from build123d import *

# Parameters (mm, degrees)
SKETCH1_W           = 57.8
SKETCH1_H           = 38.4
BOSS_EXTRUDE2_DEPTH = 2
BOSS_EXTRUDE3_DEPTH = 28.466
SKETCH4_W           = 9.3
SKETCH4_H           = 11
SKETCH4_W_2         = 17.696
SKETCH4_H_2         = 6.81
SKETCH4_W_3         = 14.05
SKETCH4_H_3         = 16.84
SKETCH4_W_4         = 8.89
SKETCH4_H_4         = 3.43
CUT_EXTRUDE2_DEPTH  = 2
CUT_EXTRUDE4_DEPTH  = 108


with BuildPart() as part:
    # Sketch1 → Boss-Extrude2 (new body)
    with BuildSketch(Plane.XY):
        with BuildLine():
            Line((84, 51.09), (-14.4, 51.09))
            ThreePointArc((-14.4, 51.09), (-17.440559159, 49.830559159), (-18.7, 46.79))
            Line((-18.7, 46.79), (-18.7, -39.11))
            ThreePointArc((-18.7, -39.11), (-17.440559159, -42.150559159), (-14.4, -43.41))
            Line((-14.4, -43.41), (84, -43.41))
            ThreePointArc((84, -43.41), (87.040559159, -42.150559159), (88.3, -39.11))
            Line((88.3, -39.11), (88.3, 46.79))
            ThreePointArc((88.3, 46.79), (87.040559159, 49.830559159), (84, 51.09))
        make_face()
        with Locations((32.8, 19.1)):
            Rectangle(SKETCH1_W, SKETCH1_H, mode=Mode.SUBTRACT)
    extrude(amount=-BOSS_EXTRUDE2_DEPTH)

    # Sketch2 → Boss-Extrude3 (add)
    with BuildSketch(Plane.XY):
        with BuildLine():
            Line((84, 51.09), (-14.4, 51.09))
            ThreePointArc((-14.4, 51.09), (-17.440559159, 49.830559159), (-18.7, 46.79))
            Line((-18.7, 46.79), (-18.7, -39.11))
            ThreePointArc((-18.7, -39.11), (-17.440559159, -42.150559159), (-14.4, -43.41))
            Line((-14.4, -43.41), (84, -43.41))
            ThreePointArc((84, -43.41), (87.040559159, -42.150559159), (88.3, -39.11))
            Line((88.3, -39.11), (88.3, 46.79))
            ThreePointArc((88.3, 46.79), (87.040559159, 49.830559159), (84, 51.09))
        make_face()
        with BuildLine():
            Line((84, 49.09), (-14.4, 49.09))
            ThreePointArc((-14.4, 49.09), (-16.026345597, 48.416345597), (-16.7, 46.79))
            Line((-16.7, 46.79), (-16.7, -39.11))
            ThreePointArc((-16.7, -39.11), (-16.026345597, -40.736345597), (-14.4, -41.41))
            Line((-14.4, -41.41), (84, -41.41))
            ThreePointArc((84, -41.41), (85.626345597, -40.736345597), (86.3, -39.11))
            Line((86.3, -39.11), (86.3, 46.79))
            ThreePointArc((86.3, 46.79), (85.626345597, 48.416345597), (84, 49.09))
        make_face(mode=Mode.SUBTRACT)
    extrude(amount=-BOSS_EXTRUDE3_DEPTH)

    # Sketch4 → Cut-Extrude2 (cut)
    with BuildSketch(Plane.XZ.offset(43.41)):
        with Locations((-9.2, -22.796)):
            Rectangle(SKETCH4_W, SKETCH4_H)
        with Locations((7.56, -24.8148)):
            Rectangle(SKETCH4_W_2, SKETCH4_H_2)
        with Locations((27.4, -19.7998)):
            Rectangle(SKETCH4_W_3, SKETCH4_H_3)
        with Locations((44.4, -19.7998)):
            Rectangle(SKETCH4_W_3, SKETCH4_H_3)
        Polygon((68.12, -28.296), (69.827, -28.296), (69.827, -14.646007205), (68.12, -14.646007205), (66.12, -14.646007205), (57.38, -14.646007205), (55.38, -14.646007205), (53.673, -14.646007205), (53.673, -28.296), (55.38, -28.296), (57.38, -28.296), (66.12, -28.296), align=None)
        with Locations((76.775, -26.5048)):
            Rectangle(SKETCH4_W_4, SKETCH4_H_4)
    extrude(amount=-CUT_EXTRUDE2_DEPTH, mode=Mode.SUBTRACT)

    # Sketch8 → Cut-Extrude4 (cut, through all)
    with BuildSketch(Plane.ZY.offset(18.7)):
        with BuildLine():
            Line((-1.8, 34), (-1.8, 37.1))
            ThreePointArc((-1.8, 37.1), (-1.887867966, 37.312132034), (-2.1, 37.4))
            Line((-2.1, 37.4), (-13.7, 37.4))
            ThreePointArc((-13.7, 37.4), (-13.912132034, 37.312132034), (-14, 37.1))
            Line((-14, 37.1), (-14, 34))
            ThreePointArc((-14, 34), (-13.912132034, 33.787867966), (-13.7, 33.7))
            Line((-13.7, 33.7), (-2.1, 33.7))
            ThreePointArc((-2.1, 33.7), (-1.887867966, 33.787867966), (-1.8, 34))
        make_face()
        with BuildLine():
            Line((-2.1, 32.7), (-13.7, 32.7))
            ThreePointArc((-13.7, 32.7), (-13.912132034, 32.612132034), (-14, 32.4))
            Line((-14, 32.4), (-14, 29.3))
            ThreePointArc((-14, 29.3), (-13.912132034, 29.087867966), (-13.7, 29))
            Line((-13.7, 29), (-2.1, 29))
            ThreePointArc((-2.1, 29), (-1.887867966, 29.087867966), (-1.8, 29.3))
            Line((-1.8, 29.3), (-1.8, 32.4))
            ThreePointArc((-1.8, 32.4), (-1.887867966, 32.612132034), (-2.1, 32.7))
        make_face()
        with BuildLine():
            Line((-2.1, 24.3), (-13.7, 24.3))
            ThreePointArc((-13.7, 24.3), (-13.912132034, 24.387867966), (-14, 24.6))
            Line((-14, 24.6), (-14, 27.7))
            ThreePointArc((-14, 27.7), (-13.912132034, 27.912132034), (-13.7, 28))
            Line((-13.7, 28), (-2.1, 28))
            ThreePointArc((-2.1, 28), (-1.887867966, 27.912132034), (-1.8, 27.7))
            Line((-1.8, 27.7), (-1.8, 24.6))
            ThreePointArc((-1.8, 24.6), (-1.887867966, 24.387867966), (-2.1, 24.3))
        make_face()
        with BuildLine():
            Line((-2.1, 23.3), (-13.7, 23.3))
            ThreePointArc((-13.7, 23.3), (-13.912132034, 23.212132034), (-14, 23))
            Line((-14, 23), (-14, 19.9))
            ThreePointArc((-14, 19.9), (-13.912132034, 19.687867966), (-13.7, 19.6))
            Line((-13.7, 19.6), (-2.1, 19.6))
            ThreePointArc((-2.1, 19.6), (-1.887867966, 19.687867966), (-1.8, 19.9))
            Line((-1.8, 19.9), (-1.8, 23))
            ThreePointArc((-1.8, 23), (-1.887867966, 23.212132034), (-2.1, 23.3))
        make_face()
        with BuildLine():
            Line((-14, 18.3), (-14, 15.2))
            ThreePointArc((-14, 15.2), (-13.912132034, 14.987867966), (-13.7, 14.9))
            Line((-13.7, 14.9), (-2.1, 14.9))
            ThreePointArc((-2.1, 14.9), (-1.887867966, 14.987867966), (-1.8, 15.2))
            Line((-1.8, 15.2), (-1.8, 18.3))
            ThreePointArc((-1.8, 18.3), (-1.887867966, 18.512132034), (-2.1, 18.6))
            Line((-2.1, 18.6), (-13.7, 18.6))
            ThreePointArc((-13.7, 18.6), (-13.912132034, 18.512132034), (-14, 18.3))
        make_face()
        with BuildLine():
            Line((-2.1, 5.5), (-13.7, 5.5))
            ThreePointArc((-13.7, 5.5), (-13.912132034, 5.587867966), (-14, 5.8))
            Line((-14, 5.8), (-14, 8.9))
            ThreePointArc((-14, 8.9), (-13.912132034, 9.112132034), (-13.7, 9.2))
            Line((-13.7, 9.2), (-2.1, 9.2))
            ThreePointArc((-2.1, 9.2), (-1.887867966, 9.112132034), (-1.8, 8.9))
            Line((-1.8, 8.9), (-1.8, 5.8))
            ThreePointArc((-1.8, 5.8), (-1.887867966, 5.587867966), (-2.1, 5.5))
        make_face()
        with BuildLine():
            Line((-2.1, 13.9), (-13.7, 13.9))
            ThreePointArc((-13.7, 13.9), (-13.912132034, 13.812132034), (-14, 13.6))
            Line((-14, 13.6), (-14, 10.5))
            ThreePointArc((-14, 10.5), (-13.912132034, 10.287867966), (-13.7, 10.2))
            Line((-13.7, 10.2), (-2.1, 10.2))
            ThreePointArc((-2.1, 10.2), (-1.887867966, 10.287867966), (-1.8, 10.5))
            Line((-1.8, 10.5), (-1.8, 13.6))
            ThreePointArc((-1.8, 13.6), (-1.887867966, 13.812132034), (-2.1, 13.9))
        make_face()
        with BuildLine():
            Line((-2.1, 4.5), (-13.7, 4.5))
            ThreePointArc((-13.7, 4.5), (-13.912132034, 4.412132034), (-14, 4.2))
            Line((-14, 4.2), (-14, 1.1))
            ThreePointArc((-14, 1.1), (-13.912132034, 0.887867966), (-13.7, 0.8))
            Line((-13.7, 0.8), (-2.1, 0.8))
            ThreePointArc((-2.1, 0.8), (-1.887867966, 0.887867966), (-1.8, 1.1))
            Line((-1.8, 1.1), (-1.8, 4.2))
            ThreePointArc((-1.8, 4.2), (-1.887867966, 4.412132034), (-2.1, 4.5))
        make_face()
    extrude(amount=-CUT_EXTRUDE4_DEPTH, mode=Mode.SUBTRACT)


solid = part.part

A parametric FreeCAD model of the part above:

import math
import FreeCAD as App
import Part
import Sketcher


def add_polygon(sketch, points):
    """Adds a closed chain of lines whose ends are joined by coincident constraints."""
    first, n = sketch.GeometryCount, len(points)
    for a, b in zip(points, points[1:] + points[:1]):
        sketch.addGeometry(Part.LineSegment(App.Vector(*a, 0), App.Vector(*b, 0)), False)
    for i in range(n):
        sketch.addConstraint(Sketcher.Constraint("Coincident", first + i, 2, first + (i + 1) % n, 1))

doc = App.newDocument("Part")
body = doc.addObject("PartDesign::Body", "Body")

# Sketch on XY plane
sketch1 = body.newObject("Sketcher::SketchObject", "Sketch")
sketch1.AttachmentSupport = (doc.getObject("XY_Plane"), [""])
sketch1.MapMode = "FlatFace"
sketch1.addGeometry(Part.LineSegment(App.Vector(84, 51.1, 0), App.Vector(-14.4, 51.1, 0)), False)  # 0
sketch1.addGeometry(Part.ArcOfCircle(Part.Circle(App.Vector(-14.4, 46.8, 0), App.Vector(0, 0, 1), 4.3), math.radians(90), math.radians(180)), False)  # 1
sketch1.addGeometry(Part.LineSegment(App.Vector(-18.7, 46.8, 0), App.Vector(-18.7, -39.1, 0)), False)  # 2
sketch1.addGeometry(Part.ArcOfCircle(Part.Circle(App.Vector(-14.4, -39.1, 0), App.Vector(0, 0, 1), 4.3), math.radians(180), math.radians(270)), False)  # 3
sketch1.addGeometry(Part.LineSegment(App.Vector(-14.4, -43.4, 0), App.Vector(84, -43.4, 0)), False)  # 4
sketch1.addGeometry(Part.ArcOfCircle(Part.Circle(App.Vector(84, -39.1, 0), App.Vector(0, 0, 1), 4.3), math.radians(-90), math.radians(0)), False)  # 5
sketch1.addGeometry(Part.LineSegment(App.Vector(88.3, -39.1, 0), App.Vector(88.3, 46.8, 0)), False)  # 6
sketch1.addGeometry(Part.ArcOfCircle(Part.Circle(App.Vector(84, 46.8, 0), App.Vector(0, 0, 1), 4.3), math.radians(0), math.radians(90)), False)  # 7
add_polygon(sketch1, [(61.7, -0.1), (3.9, -0.1), (3.9, 38.3), (61.7, 38.3)])  # lines 8-11
sketch1.addConstraint([
    Sketcher.Constraint("Tangent", 0, 2, 1, 1),
    Sketcher.Constraint("Tangent", 1, 2, 2, 1),
    Sketcher.Constraint("Tangent", 2, 2, 3, 1),
    Sketcher.Constraint("Tangent", 3, 2, 4, 1),
    Sketcher.Constraint("Tangent", 4, 2, 5, 1),
    Sketcher.Constraint("Tangent", 5, 2, 6, 1),
    Sketcher.Constraint("Tangent", 6, 2, 7, 1),
    Sketcher.Constraint("Tangent", 7, 2, 0, 1),
    Sketcher.Constraint("Horizontal", 0),
    Sketcher.Constraint("Vertical", 2),
    Sketcher.Constraint("Horizontal", 4),
    Sketcher.Constraint("Vertical", 6),
    Sketcher.Constraint("Horizontal", 8),
    Sketcher.Constraint("Vertical", 9),
    Sketcher.Constraint("Horizontal", 10),
    Sketcher.Constraint("Vertical", 11),
    Sketcher.Constraint("Equal", 1, 3),
    Sketcher.Constraint("Equal", 3, 5),
    Sketcher.Constraint("Equal", 5, 7),
    Sketcher.Constraint("Radius", 1, 4.3),
    Sketcher.Constraint("DistanceX", 0, 2, 0, 1, 98.4),
    Sketcher.Constraint("DistanceX", 8, 2, 8, 1, 57.8),
    Sketcher.Constraint("DistanceY", 2, 2, 2, 1, 85.9),
    Sketcher.Constraint("DistanceY", 9, 1, 9, 2, 38.4),
    Sketcher.Constraint("DistanceX", -1, 1, 5, 3, 84.0),
    Sketcher.Constraint("DistanceX", -1, 1, 8, 2, 3.9),
    Sketcher.Constraint("DistanceY", 8, 2, -1, 1, 0.1),
    Sketcher.Constraint("DistanceY", -1, 1, 1, 3, 46.79),
])
pad1 = body.newObject("PartDesign::Pad", "Pad")
pad1.Profile = sketch1
pad1.Length = 2
pad1.Reversed = True

# Sketch on XY plane
sketch2 = body.newObject("Sketcher::SketchObject", "Sketch001")
sketch2.AttachmentSupport = (doc.getObject("XY_Plane"), [""])
sketch2.MapMode = "FlatFace"
sketch2.addGeometry([
    Part.LineSegment(App.Vector(84, 51.1, 0), App.Vector(-14.4, 51.1, 0)),  # 0
    Part.ArcOfCircle(Part.Circle(App.Vector(-14.4, 46.8, 0), App.Vector(0, 0, 1), 4.3), math.radians(90), math.radians(180)),  # 1
    Part.LineSegment(App.Vector(-18.7, 46.8, 0), App.Vector(-18.7, -39.1, 0)),  # 2
    Part.ArcOfCircle(Part.Circle(App.Vector(-14.4, -39.1, 0), App.Vector(0, 0, 1), 4.3), math.radians(180), math.radians(270)),  # 3
    Part.LineSegment(App.Vector(-14.4, -43.4, 0), App.Vector(84, -43.4, 0)),  # 4
    Part.ArcOfCircle(Part.Circle(App.Vector(84, -39.1, 0), App.Vector(0, 0, 1), 4.3), math.radians(-90), math.radians(0)),  # 5
    Part.LineSegment(App.Vector(88.3, -39.1, 0), App.Vector(88.3, 46.8, 0)),  # 6
    Part.ArcOfCircle(Part.Circle(App.Vector(84, 46.8, 0), App.Vector(0, 0, 1), 4.3), math.radians(0), math.radians(90)),  # 7
    Part.LineSegment(App.Vector(-14.4, 49.1, 0), App.Vector(84, 49.1, 0)),  # 8
    Part.ArcOfCircle(Part.Circle(App.Vector(84, 46.8, 0), App.Vector(0, 0, 1), 2.3), math.radians(0), math.radians(90)),  # 9
    Part.LineSegment(App.Vector(86.3, 46.8, 0), App.Vector(86.3, -39.1, 0)),  # 10
    Part.ArcOfCircle(Part.Circle(App.Vector(84, -39.1, 0), App.Vector(0, 0, 1), 2.3), math.radians(-90), math.radians(0)),  # 11
    Part.LineSegment(App.Vector(84, -41.4, 0), App.Vector(-14.4, -41.4, 0)),  # 12
    Part.ArcOfCircle(Part.Circle(App.Vector(-14.4, -39.1, 0), App.Vector(0, 0, 1), 2.3), math.radians(180), math.radians(270)),  # 13
    Part.LineSegment(App.Vector(-16.7, -39.1, 0), App.Vector(-16.7, 46.8, 0)),  # 14
    Part.ArcOfCircle(Part.Circle(App.Vector(-14.4, 46.8, 0), App.Vector(0, 0, 1), 2.3), math.radians(90), math.radians(180)),  # 15
], False)
sketch2.addConstraint([
    Sketcher.Constraint("Tangent", 0, 2, 1, 1),
    Sketcher.Constraint("Tangent", 1, 2, 2, 1),
    Sketcher.Constraint("Tangent", 2, 2, 3, 1),
    Sketcher.Constraint("Tangent", 3, 2, 4, 1),
    Sketcher.Constraint("Tangent", 4, 2, 5, 1),
    Sketcher.Constraint("Tangent", 5, 2, 6, 1),
    Sketcher.Constraint("Tangent", 6, 2, 7, 1),
    Sketcher.Constraint("Tangent", 7, 2, 0, 1),
    Sketcher.Constraint("Tangent", 8, 2, 9, 2),
    Sketcher.Constraint("Tangent", 9, 1, 10, 1),
    Sketcher.Constraint("Tangent", 10, 2, 11, 2),
    Sketcher.Constraint("Tangent", 11, 1, 12, 1),
    Sketcher.Constraint("Tangent", 12, 2, 13, 2),
    Sketcher.Constraint("Tangent", 13, 1, 14, 1),
    Sketcher.Constraint("Tangent", 14, 2, 15, 2),
    Sketcher.Constraint("Tangent", 15, 1, 8, 1),
    Sketcher.Constraint("Horizontal", 0),
    Sketcher.Constraint("Vertical", 2),
    Sketcher.Constraint("Horizontal", 4),
    Sketcher.Constraint("Vertical", 6),
    Sketcher.Constraint("Horizontal", 8),
    Sketcher.Constraint("Vertical", 10),
    Sketcher.Constraint("Horizontal", 12),
    Sketcher.Constraint("Vertical", 14),
    Sketcher.Constraint("Coincident", 9, 3, 7, 3),
    Sketcher.Constraint("Coincident", 11, 3, 5, 3),
    Sketcher.Constraint("Coincident", 13, 3, 3, 3),
    Sketcher.Constraint("Equal", 1, 3),
    Sketcher.Constraint("Equal", 3, 5),
    Sketcher.Constraint("Equal", 5, 7),
    Sketcher.Constraint("Equal", 13, 15),
    Sketcher.Constraint("Radius", 1, 4.3),
    Sketcher.Constraint("Radius", 9, 2.3),
    Sketcher.Constraint("DistanceX", 0, 2, 0, 1, 98.4),
    Sketcher.Constraint("DistanceY", 2, 2, 2, 1, 85.9),
    Sketcher.Constraint("DistanceX", -1, 1, 5, 3, 84.0),
    Sketcher.Constraint("DistanceY", -1, 1, 1, 3, 46.79),
])
pad2 = body.newObject("PartDesign::Pad", "Pad001")
pad2.Profile = sketch2
pad2.Length = 28.466
pad2.Reversed = True

# Sketch on XZ plane
sketch3 = body.newObject("Sketcher::SketchObject", "Sketch002")
sketch3.AttachmentSupport = (doc.getObject("XZ_Plane"), [""])
sketch3.MapMode = "FlatFace"
sketch3.AttachmentOffset = App.Placement(App.Vector(0, 0, 43.41), App.Rotation())
add_polygon(sketch3, [(-13.8, -17.3), (-13.8, -28.3), (-4.5, -28.3), (-4.5, -17.3)])  # lines 0-3
add_polygon(sketch3, [(-1.3, -21.4), (-1.3, -28.2), (16.4, -28.2), (16.4, -21.4)])  # lines 4-7
add_polygon(sketch3, [(20.4, -11.4), (20.4, -28.2), (34.4, -28.2), (34.4, -11.4)])  # lines 8-11
add_polygon(sketch3, [(37.4, -11.4), (37.4, -28.2), (51.4, -28.2), (51.4, -11.4)])  # lines 12-15
add_polygon(sketch3, [(69.8, -28.3), (69.8, -14.6), (53.7, -14.6), (53.7, -28.3)])  # lines 16-19
add_polygon(sketch3, [(72.3, -24.8), (72.3, -28.2), (81.2, -28.2), (81.2, -24.8)])  # lines 20-23
sketch3.addConstraint([
    Sketcher.Constraint("Vertical", 0),
    Sketcher.Constraint("Horizontal", 1),
    Sketcher.Constraint("Vertical", 2),
    Sketcher.Constraint("Horizontal", 3),
    Sketcher.Constraint("Vertical", 4),
    Sketcher.Constraint("Horizontal", 5),
    Sketcher.Constraint("Vertical", 6),
    Sketcher.Constraint("Horizontal", 7),
    Sketcher.Constraint("Vertical", 8),
    Sketcher.Constraint("Horizontal", 9),
    Sketcher.Constraint("Vertical", 10),
    Sketcher.Constraint("Horizontal", 11),
    Sketcher.Constraint("Vertical", 12),
    Sketcher.Constraint("Horizontal", 13),
    Sketcher.Constraint("Vertical", 14),
    Sketcher.Constraint("Horizontal", 15),
    Sketcher.Constraint("Vertical", 16),
    Sketcher.Constraint("Horizontal", 17),
    Sketcher.Constraint("Vertical", 18),
    Sketcher.Constraint("Horizontal", 19),
    Sketcher.Constraint("Vertical", 20),
    Sketcher.Constraint("Horizontal", 21),
    Sketcher.Constraint("Vertical", 22),
    Sketcher.Constraint("Horizontal", 23),
    Sketcher.Constraint("Horizontal", 5, 2, 8, 2),
    Sketcher.Constraint("Horizontal", 9, 2, 12, 2),
    Sketcher.Constraint("Horizontal", 11, 2, 14, 2),
    Sketcher.Constraint("Horizontal", 1, 2, 18, 2),
    Sketcher.Constraint("Horizontal", 13, 2, 20, 2),
    Sketcher.Constraint("Equal", 11, 13),
    Sketcher.Constraint("DistanceY", 0, 2, 0, 1, 11.0),
    Sketcher.Constraint("DistanceX", 1, 1, 1, 2, 9.3),
    Sketcher.Constraint("DistanceX", 8, 2, 12, 2, 17.0),
    Sketcher.Constraint("DistanceX", 9, 1, 9, 2, 14.05),
    Sketcher.Constraint("DistanceX", 21, 1, 21, 2, 8.89),
    Sketcher.Constraint("DistanceY", 4, 2, 4, 1, 6.81),
    Sketcher.Constraint("DistanceY", 8, 2, 8, 1, 16.84),
    Sketcher.Constraint("DistanceY", 20, 2, 20, 1, 3.43),
    Sketcher.Constraint("DistanceX", 5, 1, 5, 2, 17.696),
    Sketcher.Constraint("DistanceX", 17, 2, 17, 1, 16.154),
    Sketcher.Constraint("DistanceX", 0, 2, -1, 1, 13.85),
    Sketcher.Constraint("DistanceX", -1, 1, 20, 2, 72.33),
    Sketcher.Constraint("DistanceY", 0, 2, -1, 1, 28.296),
    Sketcher.Constraint("DistanceX", 4, 2, -1, 1, 1.288),
    Sketcher.Constraint("DistanceX", -1, 1, 8, 2, 20.375),
    Sketcher.Constraint("DistanceX", -1, 1, 16, 2, 69.827),
    Sketcher.Constraint("DistanceY", 4, 2, -1, 1, 28.2198),
    Sketcher.Constraint("DistanceY", 16, 1, 16, 2, 13.649993),
])
pocket1 = body.newObject("PartDesign::Pocket", "Pocket")
pocket1.Profile = sketch3
pocket1.Length = 2

# Sketch on YZ plane
sketch4 = body.newObject("Sketcher::SketchObject", "Sketch003")
sketch4.AttachmentSupport = (doc.getObject("YZ_Plane"), [""])
sketch4.MapMode = "FlatFace"
sketch4.AttachmentOffset = App.Placement(App.Vector(0, 0, -18.7), App.Rotation())
sketch4.addGeometry([
    Part.LineSegment(App.Vector(34, -1.8, 0), App.Vector(37.1, -1.8, 0)),  # 0
    Part.ArcOfCircle(Part.Circle(App.Vector(37.1, -2.1, 0), App.Vector(0, 0, 1), 0.3), math.radians(0), math.radians(90)),  # 1
    Part.LineSegment(App.Vector(37.4, -2.1, 0), App.Vector(37.4, -13.7, 0)),  # 2
    Part.ArcOfCircle(Part.Circle(App.Vector(37.1, -13.7, 0), App.Vector(0, 0, 1), 0.3), math.radians(-90), math.radians(0)),  # 3
    Part.LineSegment(App.Vector(37.1, -14, 0), App.Vector(34, -14, 0)),  # 4
    Part.ArcOfCircle(Part.Circle(App.Vector(34, -13.7, 0), App.Vector(0, 0, 1), 0.3), math.radians(-180), math.radians(-90)),  # 5
    Part.LineSegment(App.Vector(33.7, -13.7, 0), App.Vector(33.7, -2.1, 0)),  # 6
    Part.ArcOfCircle(Part.Circle(App.Vector(34, -2.1, 0), App.Vector(0, 0, 1), 0.3), math.radians(90), math.radians(180)),  # 7
    Part.LineSegment(App.Vector(32.7, -2.1, 0), App.Vector(32.7, -13.7, 0)),  # 8
    Part.ArcOfCircle(Part.Circle(App.Vector(32.4, -13.7, 0), App.Vector(0, 0, 1), 0.3), math.radians(-90), math.radians(0)),  # 9
    Part.LineSegment(App.Vector(32.4, -14, 0), App.Vector(29.3, -14, 0)),  # 10
    Part.ArcOfCircle(Part.Circle(App.Vector(29.3, -13.7, 0), App.Vector(0, 0, 1), 0.3), math.radians(-180), math.radians(-90)),  # 11
    Part.LineSegment(App.Vector(29, -13.7, 0), App.Vector(29, -2.1, 0)),  # 12
    Part.ArcOfCircle(Part.Circle(App.Vector(29.3, -2.1, 0), App.Vector(0, 0, 1), 0.3), math.radians(90), math.radians(180)),  # 13
    Part.LineSegment(App.Vector(29.3, -1.8, 0), App.Vector(32.4, -1.8, 0)),  # 14
    Part.ArcOfCircle(Part.Circle(App.Vector(32.4, -2.1, 0), App.Vector(0, 0, 1), 0.3), math.radians(0), math.radians(90)),  # 15
    Part.LineSegment(App.Vector(24.3, -13.7, 0), App.Vector(24.3, -2.1, 0)),  # 16
    Part.ArcOfCircle(Part.Circle(App.Vector(24.6, -2.1, 0), App.Vector(0, 0, 1), 0.3), math.radians(90), math.radians(180)),  # 17
    Part.LineSegment(App.Vector(24.6, -1.8, 0), App.Vector(27.7, -1.8, 0)),  # 18
    Part.ArcOfCircle(Part.Circle(App.Vector(27.7, -2.1, 0), App.Vector(0, 0, 1), 0.3), math.radians(0), math.radians(90)),  # 19
    Part.LineSegment(App.Vector(28, -2.1, 0), App.Vector(28, -13.7, 0)),  # 20
    Part.ArcOfCircle(Part.Circle(App.Vector(27.7, -13.7, 0), App.Vector(0, 0, 1), 0.3), math.radians(-90), math.radians(0)),  # 21
    Part.LineSegment(App.Vector(27.7, -14, 0), App.Vector(24.6, -14, 0)),  # 22
    Part.ArcOfCircle(Part.Circle(App.Vector(24.6, -13.7, 0), App.Vector(0, 0, 1), 0.3), math.radians(-180), math.radians(-90)),  # 23
    Part.LineSegment(App.Vector(23.3, -2.1, 0), App.Vector(23.3, -13.7, 0)),  # 24
    Part.ArcOfCircle(Part.Circle(App.Vector(23, -13.7, 0), App.Vector(0, 0, 1), 0.3), math.radians(-90), math.radians(0)),  # 25
    Part.LineSegment(App.Vector(23, -14, 0), App.Vector(19.9, -14, 0)),  # 26
    Part.ArcOfCircle(Part.Circle(App.Vector(19.9, -13.7, 0), App.Vector(0, 0, 1), 0.3), math.radians(-180), math.radians(-90)),  # 27
    Part.LineSegment(App.Vector(19.6, -13.7, 0), App.Vector(19.6, -2.1, 0)),  # 28
    Part.ArcOfCircle(Part.Circle(App.Vector(19.9, -2.1, 0), App.Vector(0, 0, 1), 0.3), math.radians(90), math.radians(180)),  # 29
    Part.LineSegment(App.Vector(19.9, -1.8, 0), App.Vector(23, -1.8, 0)),  # 30
    Part.ArcOfCircle(Part.Circle(App.Vector(23, -2.1, 0), App.Vector(0, 0, 1), 0.3), math.radians(0), math.radians(90)),  # 31
    Part.LineSegment(App.Vector(18.3, -14, 0), App.Vector(15.2, -14, 0)),  # 32
    Part.ArcOfCircle(Part.Circle(App.Vector(15.2, -13.7, 0), App.Vector(0, 0, 1), 0.3), math.radians(-180), math.radians(-90)),  # 33
    Part.LineSegment(App.Vector(14.9, -13.7, 0), App.Vector(14.9, -2.1, 0)),  # 34
    Part.ArcOfCircle(Part.Circle(App.Vector(15.2, -2.1, 0), App.Vector(0, 0, 1), 0.3), math.radians(90), math.radians(180)),  # 35
    Part.LineSegment(App.Vector(15.2, -1.8, 0), App.Vector(18.3, -1.8, 0)),  # 36
    Part.ArcOfCircle(Part.Circle(App.Vector(18.3, -2.1, 0), App.Vector(0, 0, 1), 0.3), math.radians(0), math.radians(90)),  # 37
    Part.LineSegment(App.Vector(18.6, -2.1, 0), App.Vector(18.6, -13.7, 0)),  # 38
    Part.ArcOfCircle(Part.Circle(App.Vector(18.3, -13.7, 0), App.Vector(0, 0, 1), 0.3), math.radians(-90), math.radians(0)),  # 39
    Part.LineSegment(App.Vector(5.5, -13.7, 0), App.Vector(5.5, -2.1, 0)),  # 40
    Part.ArcOfCircle(Part.Circle(App.Vector(5.8, -2.1, 0), App.Vector(0, 0, 1), 0.3), math.radians(90), math.radians(180)),  # 41
    Part.LineSegment(App.Vector(5.8, -1.8, 0), App.Vector(8.9, -1.8, 0)),  # 42
    Part.ArcOfCircle(Part.Circle(App.Vector(8.9, -2.1, 0), App.Vector(0, 0, 1), 0.3), math.radians(0), math.radians(90)),  # 43
    Part.LineSegment(App.Vector(9.2, -2.1, 0), App.Vector(9.2, -13.7, 0)),  # 44
    Part.ArcOfCircle(Part.Circle(App.Vector(8.9, -13.7, 0), App.Vector(0, 0, 1), 0.3), math.radians(-90), math.radians(0)),  # 45
    Part.LineSegment(App.Vector(8.9, -14, 0), App.Vector(5.8, -14, 0)),  # 46
    Part.ArcOfCircle(Part.Circle(App.Vector(5.8, -13.7, 0), App.Vector(0, 0, 1), 0.3), math.radians(-180), math.radians(-90)),  # 47
    Part.LineSegment(App.Vector(13.9, -2.1, 0), App.Vector(13.9, -13.7, 0)),  # 48
    Part.ArcOfCircle(Part.Circle(App.Vector(13.6, -13.7, 0), App.Vector(0, 0, 1), 0.3), math.radians(-90), math.radians(0)),  # 49
    Part.LineSegment(App.Vector(13.6, -14, 0), App.Vector(10.5, -14, 0)),  # 50
    Part.ArcOfCircle(Part.Circle(App.Vector(10.5, -13.7, 0), App.Vector(0, 0, 1), 0.3), math.radians(-180), math.radians(-90)),  # 51
    Part.LineSegment(App.Vector(10.2, -13.7, 0), App.Vector(10.2, -2.1, 0)),  # 52
    Part.ArcOfCircle(Part.Circle(App.Vector(10.5, -2.1, 0), App.Vector(0, 0, 1), 0.3), math.radians(90), math.radians(180)),  # 53
    Part.LineSegment(App.Vector(10.5, -1.8, 0), App.Vector(13.6, -1.8, 0)),  # 54
    Part.ArcOfCircle(Part.Circle(App.Vector(13.6, -2.1, 0), App.Vector(0, 0, 1), 0.3), math.radians(0), math.radians(90)),  # 55
    Part.LineSegment(App.Vector(4.5, -2.1, 0), App.Vector(4.5, -13.7, 0)),  # 56
    Part.ArcOfCircle(Part.Circle(App.Vector(4.2, -13.7, 0), App.Vector(0, 0, 1), 0.3), math.radians(-90), math.radians(0)),  # 57
    Part.LineSegment(App.Vector(4.2, -14, 0), App.Vector(1.1, -14, 0)),  # 58
    Part.ArcOfCircle(Part.Circle(App.Vector(1.1, -13.7, 0), App.Vector(0, 0, 1), 0.3), math.radians(-180), math.radians(-90)),  # 59
    Part.LineSegment(App.Vector(0.8, -13.7, 0), App.Vector(0.8, -2.1, 0)),  # 60
    Part.ArcOfCircle(Part.Circle(App.Vector(1.1, -2.1, 0), App.Vector(0, 0, 1), 0.3), math.radians(90), math.radians(180)),  # 61
    Part.LineSegment(App.Vector(1.1, -1.8, 0), App.Vector(4.2, -1.8, 0)),  # 62
    Part.ArcOfCircle(Part.Circle(App.Vector(4.2, -2.1, 0), App.Vector(0, 0, 1), 0.3), math.radians(0), math.radians(90)),  # 63
], False)
sketch4.addConstraint([
    Sketcher.Constraint("Tangent", 0, 2, 1, 2),
    Sketcher.Constraint("Tangent", 1, 1, 2, 1),
    Sketcher.Constraint("Tangent", 2, 2, 3, 2),
    Sketcher.Constraint("Tangent", 3, 1, 4, 1),
    Sketcher.Constraint("Tangent", 4, 2, 5, 2),
    Sketcher.Constraint("Tangent", 5, 1, 6, 1),
    Sketcher.Constraint("Tangent", 6, 2, 7, 2),
    Sketcher.Constraint("Tangent", 7, 1, 0, 1),
    Sketcher.Constraint("Tangent", 8, 2, 9, 2),
    Sketcher.Constraint("Tangent", 9, 1, 10, 1),
    Sketcher.Constraint("Tangent", 10, 2, 11, 2),
    Sketcher.Constraint("Tangent", 11, 1, 12, 1),
    Sketcher.Constraint("Tangent", 12, 2, 13, 2),
    Sketcher.Constraint("Tangent", 13, 1, 14, 1),
    Sketcher.Constraint("Tangent", 14, 2, 15, 2),
    Sketcher.Constraint("Tangent", 15, 1, 8, 1),
    Sketcher.Constraint("Tangent", 16, 2, 17, 2),
    Sketcher.Constraint("Tangent", 17, 1, 18, 1),
    Sketcher.Constraint("Tangent", 18, 2, 19, 2),
    Sketcher.Constraint("Tangent", 19, 1, 20, 1),
    Sketcher.Constraint("Tangent", 20, 2, 21, 2),
    Sketcher.Constraint("Tangent", 21, 1, 22, 1),
    Sketcher.Constraint("Tangent", 22, 2, 23, 2),
    Sketcher.Constraint("Tangent", 23, 1, 16, 1),
    Sketcher.Constraint("Tangent", 24, 2, 25, 2),
    Sketcher.Constraint("Tangent", 25, 1, 26, 1),
    Sketcher.Constraint("Tangent", 26, 2, 27, 2),
    Sketcher.Constraint("Tangent", 27, 1, 28, 1),
    Sketcher.Constraint("Tangent", 28, 2, 29, 2),
    Sketcher.Constraint("Tangent", 29, 1, 30, 1),
    Sketcher.Constraint("Tangent", 30, 2, 31, 2),
    Sketcher.Constraint("Tangent", 31, 1, 24, 1),
    Sketcher.Constraint("Tangent", 32, 2, 33, 2),
    Sketcher.Constraint("Tangent", 33, 1, 34, 1),
    Sketcher.Constraint("Tangent", 34, 2, 35, 2),
    Sketcher.Constraint("Tangent", 35, 1, 36, 1),
    Sketcher.Constraint("Tangent", 36, 2, 37, 2),
    Sketcher.Constraint("Tangent", 37, 1, 38, 1),
    Sketcher.Constraint("Tangent", 38, 2, 39, 2),
    Sketcher.Constraint("Tangent", 39, 1, 32, 1),
    Sketcher.Constraint("Tangent", 40, 2, 41, 2),
    Sketcher.Constraint("Tangent", 41, 1, 42, 1),
    Sketcher.Constraint("Tangent", 42, 2, 43, 2),
    Sketcher.Constraint("Tangent", 43, 1, 44, 1),
    Sketcher.Constraint("Tangent", 44, 2, 45, 2),
    Sketcher.Constraint("Tangent", 45, 1, 46, 1),
    Sketcher.Constraint("Tangent", 46, 2, 47, 2),
    Sketcher.Constraint("Tangent", 47, 1, 40, 1),
    Sketcher.Constraint("Tangent", 48, 2, 49, 2),
    Sketcher.Constraint("Tangent", 49, 1, 50, 1),
    Sketcher.Constraint("Tangent", 50, 2, 51, 2),
    Sketcher.Constraint("Tangent", 51, 1, 52, 1),
    Sketcher.Constraint("Tangent", 52, 2, 53, 2),
    Sketcher.Constraint("Tangent", 53, 1, 54, 1),
    Sketcher.Constraint("Tangent", 54, 2, 55, 2),
    Sketcher.Constraint("Tangent", 55, 1, 48, 1),
    Sketcher.Constraint("Tangent", 56, 2, 57, 2),
    Sketcher.Constraint("Tangent", 57, 1, 58, 1),
    Sketcher.Constraint("Tangent", 58, 2, 59, 2),
    Sketcher.Constraint("Tangent", 59, 1, 60, 1),
    Sketcher.Constraint("Tangent", 60, 2, 61, 2),
    Sketcher.Constraint("Tangent", 61, 1, 62, 1),
    Sketcher.Constraint("Tangent", 62, 2, 63, 2),
    Sketcher.Constraint("Tangent", 63, 1, 56, 1),
    Sketcher.Constraint("Horizontal", 0),
    Sketcher.Constraint("Vertical", 2),
    Sketcher.Constraint("Horizontal", 4),
    Sketcher.Constraint("Vertical", 6),
    Sketcher.Constraint("Vertical", 8),
    Sketcher.Constraint("Horizontal", 10),
    Sketcher.Constraint("Vertical", 12),
    Sketcher.Constraint("Horizontal", 14),
    Sketcher.Constraint("Vertical", 16),
    Sketcher.Constraint("Horizontal", 18),
    Sketcher.Constraint("Vertical", 20),
    Sketcher.Constraint("Horizontal", 22),
    Sketcher.Constraint("Vertical", 24),
    Sketcher.Constraint("Horizontal", 26),
    Sketcher.Constraint("Vertical", 28),
    Sketcher.Constraint("Horizontal", 30),
    Sketcher.Constraint("Horizontal", 32),
    Sketcher.Constraint("Vertical", 34),
    Sketcher.Constraint("Horizontal", 36),
    Sketcher.Constraint("Vertical", 38),
    Sketcher.Constraint("Vertical", 40),
    Sketcher.Constraint("Horizontal", 42),
    Sketcher.Constraint("Vertical", 44),
    Sketcher.Constraint("Horizontal", 46),
    Sketcher.Constraint("Vertical", 48),
    Sketcher.Constraint("Horizontal", 50),
    Sketcher.Constraint("Vertical", 52),
    Sketcher.Constraint("Horizontal", 54),
    Sketcher.Constraint("Vertical", 56),
    Sketcher.Constraint("Horizontal", 58),
    Sketcher.Constraint("Vertical", 60),
    Sketcher.Constraint("Horizontal", 62),
    Sketcher.Constraint("Equal", 1, 3),
    Sketcher.Constraint("Equal", 3, 5),
    Sketcher.Constraint("Equal", 5, 7),
    Sketcher.Constraint("Equal", 7, 9),
    Sketcher.Constraint("Equal", 9, 11),
    Sketcher.Constraint("Equal", 11, 13),
    Sketcher.Constraint("Equal", 13, 15),
    Sketcher.Constraint("Equal", 15, 17),
    Sketcher.Constraint("Equal", 17, 19),
    Sketcher.Constraint("Equal", 19, 21),
    Sketcher.Constraint("Equal", 21, 23),
    Sketcher.Constraint("Equal", 23, 25),
    Sketcher.Constraint("Equal", 25, 27),
    Sketcher.Constraint("Equal", 27, 29),
    Sketcher.Constraint("Equal", 29, 31),
    Sketcher.Constraint("Equal", 31, 33),
    Sketcher.Constraint("Equal", 33, 35),
    Sketcher.Constraint("Equal", 35, 37),
    Sketcher.Constraint("Equal", 37, 39),
    Sketcher.Constraint("Equal", 39, 41),
    Sketcher.Constraint("Equal", 41, 43),
    Sketcher.Constraint("Equal", 43, 45),
    Sketcher.Constraint("Equal", 45, 47),
    Sketcher.Constraint("Equal", 47, 49),
    Sketcher.Constraint("Equal", 49, 51),
    Sketcher.Constraint("Equal", 51, 53),
    Sketcher.Constraint("Equal", 53, 55),
    Sketcher.Constraint("Equal", 55, 57),
    Sketcher.Constraint("Equal", 57, 59),
    Sketcher.Constraint("Equal", 59, 61),
    Sketcher.Constraint("Equal", 61, 63),
    Sketcher.Constraint("Horizontal", 5, 3, 9, 3),
    Sketcher.Constraint("Horizontal", 7, 3, 13, 3),
    Sketcher.Constraint("Horizontal", 15, 3, 17, 3),
    Sketcher.Constraint("Horizontal", 11, 3, 21, 3),
    Sketcher.Constraint("Horizontal", 23, 3, 25, 3),
    Sketcher.Constraint("Horizontal", 19, 3, 29, 3),
    Sketcher.Constraint("Horizontal", 27, 3, 33, 3),
    Sketcher.Constraint("Horizontal", 31, 3, 35, 3),
    Sketcher.Constraint("Horizontal", 37, 3, 41, 3),
    Sketcher.Constraint("Horizontal", 39, 3, 45, 3),
    Sketcher.Constraint("Horizontal", 47, 3, 49, 3),
    Sketcher.Constraint("Horizontal", 43, 3, 53, 3),
    Sketcher.Constraint("Horizontal", 51, 3, 57, 3),
    Sketcher.Constraint("Horizontal", 55, 3, 61, 3),
    Sketcher.Constraint("Equal", 4, 10),
    Sketcher.Constraint("Equal", 14, 18),
    Sketcher.Constraint("Equal", 22, 26),
    Sketcher.Constraint("Equal", 30, 32),
    Sketcher.Constraint("Equal", 36, 42),
    Sketcher.Constraint("Equal", 46, 50),
    Sketcher.Constraint("Equal", 54, 58),
    Sketcher.Constraint("Radius", 1, 0.3),
    Sketcher.Constraint("DistanceX", 0, 1, 0, 2, 3.1),
    Sketcher.Constraint("DistanceY", 2, 2, 2, 1, 11.6),
    Sketcher.Constraint("DistanceX", -1, 1, 5, 3, 34.0),
    Sketcher.Constraint("DistanceX", -1, 1, 25, 3, 23.0),
    Sketcher.Constraint("DistanceY", 3, 1, -1, 1, 14.0),
    Sketcher.Constraint("DistanceX", -1, 1, 11, 1, 29.0),
    Sketcher.Constraint("DistanceX", -1, 1, 19, 1, 28.0),
    Sketcher.Constraint("DistanceX", -1, 1, 33, 3, 15.2),
    Sketcher.Constraint("DistanceX", -1, 1, 41, 3, 5.8),
    Sketcher.Constraint("DistanceX", -1, 1, 49, 3, 13.6),
    Sketcher.Constraint("DistanceX", -1, 1, 57, 3, 4.2),
])
pocket2 = body.newObject("PartDesign::Pocket", "Pocket001")
pocket2.Profile = sketch4
pocket2.Type = "ThroughAll"
pocket2.Reversed = True

doc.recompute()
